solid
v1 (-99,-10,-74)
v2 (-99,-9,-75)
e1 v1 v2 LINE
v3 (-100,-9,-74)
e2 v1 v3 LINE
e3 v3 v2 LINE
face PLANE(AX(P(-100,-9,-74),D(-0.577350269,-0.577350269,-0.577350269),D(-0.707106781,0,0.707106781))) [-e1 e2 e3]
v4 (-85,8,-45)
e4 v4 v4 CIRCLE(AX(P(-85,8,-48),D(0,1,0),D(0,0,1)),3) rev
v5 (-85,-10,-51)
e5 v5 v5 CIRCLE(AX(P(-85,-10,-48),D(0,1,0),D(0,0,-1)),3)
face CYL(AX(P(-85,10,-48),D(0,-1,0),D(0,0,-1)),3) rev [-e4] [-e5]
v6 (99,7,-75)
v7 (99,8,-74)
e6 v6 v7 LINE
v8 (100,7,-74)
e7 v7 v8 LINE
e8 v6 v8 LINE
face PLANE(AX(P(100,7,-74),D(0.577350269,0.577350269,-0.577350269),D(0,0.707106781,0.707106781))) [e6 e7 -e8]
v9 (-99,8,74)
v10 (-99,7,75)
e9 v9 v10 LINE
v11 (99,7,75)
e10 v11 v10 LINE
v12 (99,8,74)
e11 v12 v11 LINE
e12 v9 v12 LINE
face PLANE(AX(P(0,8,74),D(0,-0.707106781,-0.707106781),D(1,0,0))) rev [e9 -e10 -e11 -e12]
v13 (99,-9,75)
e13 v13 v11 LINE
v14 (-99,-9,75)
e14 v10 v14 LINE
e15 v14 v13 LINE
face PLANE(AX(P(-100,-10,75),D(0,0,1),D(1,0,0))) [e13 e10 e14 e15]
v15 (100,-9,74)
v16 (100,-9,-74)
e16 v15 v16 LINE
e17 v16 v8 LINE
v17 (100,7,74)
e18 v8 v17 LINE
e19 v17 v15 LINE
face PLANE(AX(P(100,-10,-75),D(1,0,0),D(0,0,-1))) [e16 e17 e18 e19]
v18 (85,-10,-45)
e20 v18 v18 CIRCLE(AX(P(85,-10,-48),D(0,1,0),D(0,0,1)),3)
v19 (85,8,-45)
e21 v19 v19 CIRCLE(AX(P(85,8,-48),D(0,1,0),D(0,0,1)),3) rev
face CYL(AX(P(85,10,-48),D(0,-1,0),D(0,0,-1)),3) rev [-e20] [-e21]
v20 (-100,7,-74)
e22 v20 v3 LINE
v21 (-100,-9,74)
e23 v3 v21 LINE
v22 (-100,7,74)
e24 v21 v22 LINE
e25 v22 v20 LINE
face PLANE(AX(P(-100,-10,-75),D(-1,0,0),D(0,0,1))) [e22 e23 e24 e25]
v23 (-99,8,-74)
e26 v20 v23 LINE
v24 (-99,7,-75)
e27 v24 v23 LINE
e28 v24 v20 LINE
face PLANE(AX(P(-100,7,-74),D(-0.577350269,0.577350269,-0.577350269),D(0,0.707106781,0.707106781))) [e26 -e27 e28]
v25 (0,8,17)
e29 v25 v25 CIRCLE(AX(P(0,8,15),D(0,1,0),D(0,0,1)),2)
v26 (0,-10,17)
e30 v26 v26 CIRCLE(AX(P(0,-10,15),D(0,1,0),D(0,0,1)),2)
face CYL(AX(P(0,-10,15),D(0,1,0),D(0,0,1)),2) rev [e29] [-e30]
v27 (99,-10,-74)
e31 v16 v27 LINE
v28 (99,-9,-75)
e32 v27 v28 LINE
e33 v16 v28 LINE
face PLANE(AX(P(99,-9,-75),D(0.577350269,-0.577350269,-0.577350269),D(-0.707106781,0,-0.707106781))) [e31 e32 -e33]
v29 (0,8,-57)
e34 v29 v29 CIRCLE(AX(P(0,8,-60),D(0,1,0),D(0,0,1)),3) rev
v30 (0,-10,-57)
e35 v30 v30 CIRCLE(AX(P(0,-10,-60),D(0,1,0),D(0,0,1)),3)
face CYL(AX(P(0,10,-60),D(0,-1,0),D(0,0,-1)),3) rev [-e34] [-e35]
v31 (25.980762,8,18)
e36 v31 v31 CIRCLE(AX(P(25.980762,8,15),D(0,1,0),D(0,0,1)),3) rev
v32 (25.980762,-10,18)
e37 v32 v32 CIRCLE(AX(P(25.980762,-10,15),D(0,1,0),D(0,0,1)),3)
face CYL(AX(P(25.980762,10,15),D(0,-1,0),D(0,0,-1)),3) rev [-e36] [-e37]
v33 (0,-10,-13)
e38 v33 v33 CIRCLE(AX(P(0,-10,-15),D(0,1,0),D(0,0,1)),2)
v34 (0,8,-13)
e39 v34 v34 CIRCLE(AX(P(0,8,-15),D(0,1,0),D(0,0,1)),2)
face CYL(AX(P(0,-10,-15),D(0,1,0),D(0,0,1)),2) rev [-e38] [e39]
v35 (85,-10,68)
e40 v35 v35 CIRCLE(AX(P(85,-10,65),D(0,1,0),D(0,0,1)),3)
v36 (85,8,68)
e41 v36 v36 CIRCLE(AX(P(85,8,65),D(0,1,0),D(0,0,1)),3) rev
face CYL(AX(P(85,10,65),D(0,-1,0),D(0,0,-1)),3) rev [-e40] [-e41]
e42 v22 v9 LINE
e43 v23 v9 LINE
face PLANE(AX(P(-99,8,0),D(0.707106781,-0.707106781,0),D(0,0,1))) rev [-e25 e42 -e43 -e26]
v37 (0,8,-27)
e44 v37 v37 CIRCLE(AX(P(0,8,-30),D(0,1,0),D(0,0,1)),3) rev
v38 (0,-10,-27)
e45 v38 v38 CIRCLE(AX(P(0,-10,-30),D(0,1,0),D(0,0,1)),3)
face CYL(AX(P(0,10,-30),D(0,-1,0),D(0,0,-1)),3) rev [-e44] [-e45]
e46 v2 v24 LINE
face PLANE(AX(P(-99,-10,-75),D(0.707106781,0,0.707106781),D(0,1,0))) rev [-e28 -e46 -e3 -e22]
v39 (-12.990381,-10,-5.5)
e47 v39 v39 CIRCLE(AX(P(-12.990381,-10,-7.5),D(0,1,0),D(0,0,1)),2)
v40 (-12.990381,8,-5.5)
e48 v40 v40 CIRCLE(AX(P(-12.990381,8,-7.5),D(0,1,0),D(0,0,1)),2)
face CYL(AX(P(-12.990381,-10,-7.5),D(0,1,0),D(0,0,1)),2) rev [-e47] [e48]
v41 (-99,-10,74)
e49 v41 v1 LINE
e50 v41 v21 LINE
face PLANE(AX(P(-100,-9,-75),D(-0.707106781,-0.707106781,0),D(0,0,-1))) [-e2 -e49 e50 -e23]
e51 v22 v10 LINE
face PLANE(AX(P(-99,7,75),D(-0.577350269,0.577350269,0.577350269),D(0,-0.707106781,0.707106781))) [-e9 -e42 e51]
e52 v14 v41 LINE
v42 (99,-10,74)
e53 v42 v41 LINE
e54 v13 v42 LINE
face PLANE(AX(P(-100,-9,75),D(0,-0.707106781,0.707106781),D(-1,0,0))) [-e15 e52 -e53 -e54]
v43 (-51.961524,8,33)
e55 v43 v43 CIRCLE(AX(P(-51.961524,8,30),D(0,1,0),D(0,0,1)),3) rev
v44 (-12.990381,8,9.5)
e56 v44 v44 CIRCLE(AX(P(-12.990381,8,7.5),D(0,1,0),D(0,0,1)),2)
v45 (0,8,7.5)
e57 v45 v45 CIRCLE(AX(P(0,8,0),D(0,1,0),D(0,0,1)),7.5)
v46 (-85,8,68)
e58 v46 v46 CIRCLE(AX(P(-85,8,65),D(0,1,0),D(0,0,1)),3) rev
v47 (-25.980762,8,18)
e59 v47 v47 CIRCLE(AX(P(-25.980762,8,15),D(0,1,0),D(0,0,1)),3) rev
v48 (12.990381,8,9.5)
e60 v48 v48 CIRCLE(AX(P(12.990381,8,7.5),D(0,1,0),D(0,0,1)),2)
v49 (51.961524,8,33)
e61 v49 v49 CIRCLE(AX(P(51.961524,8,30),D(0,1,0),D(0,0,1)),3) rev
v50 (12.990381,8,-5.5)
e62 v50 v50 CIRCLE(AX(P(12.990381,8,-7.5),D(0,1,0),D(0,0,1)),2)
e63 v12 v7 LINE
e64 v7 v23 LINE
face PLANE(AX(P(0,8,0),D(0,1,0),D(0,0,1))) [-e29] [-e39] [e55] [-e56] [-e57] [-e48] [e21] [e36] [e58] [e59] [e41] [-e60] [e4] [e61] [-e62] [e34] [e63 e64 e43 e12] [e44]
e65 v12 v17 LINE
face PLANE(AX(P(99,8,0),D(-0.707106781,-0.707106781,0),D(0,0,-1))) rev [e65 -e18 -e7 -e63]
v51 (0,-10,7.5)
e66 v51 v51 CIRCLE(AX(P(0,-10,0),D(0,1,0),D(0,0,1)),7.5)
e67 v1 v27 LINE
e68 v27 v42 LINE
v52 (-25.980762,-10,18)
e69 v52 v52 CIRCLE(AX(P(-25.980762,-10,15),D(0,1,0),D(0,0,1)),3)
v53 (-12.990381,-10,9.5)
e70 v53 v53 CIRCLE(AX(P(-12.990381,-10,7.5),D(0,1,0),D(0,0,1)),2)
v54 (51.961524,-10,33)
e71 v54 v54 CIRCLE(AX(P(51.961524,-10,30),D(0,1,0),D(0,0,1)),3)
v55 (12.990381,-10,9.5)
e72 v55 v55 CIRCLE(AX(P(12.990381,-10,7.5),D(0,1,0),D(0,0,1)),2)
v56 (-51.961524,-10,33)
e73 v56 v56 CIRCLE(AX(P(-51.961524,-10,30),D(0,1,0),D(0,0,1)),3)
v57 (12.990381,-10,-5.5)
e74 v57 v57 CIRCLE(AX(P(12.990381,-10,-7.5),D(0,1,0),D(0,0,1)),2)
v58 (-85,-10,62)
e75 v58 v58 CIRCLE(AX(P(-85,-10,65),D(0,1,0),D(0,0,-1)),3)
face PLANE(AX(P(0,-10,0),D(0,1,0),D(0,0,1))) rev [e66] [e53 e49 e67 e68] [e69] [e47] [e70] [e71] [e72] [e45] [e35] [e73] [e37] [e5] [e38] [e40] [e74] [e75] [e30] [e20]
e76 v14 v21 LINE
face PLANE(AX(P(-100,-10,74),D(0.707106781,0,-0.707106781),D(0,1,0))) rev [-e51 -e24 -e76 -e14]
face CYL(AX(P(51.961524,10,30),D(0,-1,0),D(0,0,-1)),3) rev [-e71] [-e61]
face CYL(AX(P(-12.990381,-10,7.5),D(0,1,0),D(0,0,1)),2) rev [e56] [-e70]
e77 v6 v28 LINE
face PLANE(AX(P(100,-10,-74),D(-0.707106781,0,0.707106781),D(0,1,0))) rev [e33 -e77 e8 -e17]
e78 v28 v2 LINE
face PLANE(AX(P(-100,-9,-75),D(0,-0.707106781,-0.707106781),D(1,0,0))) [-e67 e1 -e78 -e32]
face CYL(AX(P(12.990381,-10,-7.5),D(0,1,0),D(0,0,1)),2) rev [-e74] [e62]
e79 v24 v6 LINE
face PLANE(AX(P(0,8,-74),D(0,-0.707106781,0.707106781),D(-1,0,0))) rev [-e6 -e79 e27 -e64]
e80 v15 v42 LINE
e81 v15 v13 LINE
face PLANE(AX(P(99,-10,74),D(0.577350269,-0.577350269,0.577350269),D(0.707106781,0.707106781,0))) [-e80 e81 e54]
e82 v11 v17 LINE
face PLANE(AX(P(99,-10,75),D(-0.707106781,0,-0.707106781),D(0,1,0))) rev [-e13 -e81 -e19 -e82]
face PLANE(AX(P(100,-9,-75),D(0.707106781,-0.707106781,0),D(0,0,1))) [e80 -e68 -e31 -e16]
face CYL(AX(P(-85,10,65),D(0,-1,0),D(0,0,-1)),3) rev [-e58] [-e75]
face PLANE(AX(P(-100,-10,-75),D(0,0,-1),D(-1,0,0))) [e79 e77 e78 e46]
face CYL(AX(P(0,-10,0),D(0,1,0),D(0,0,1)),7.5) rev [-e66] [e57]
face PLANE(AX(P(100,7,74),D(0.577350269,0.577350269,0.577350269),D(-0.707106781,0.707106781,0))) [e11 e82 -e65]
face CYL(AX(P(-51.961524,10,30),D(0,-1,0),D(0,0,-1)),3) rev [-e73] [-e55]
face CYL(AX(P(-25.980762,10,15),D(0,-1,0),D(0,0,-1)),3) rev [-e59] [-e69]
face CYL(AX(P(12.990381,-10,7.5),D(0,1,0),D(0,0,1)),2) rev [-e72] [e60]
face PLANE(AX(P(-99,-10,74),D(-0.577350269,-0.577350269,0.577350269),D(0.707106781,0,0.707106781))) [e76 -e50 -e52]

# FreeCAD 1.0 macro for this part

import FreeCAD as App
import Part
import Sketcher

V = App.Vector
Q = App.Units.Quantity


def edges_at(feature, points):
    """Names of the edges that pass closest to the given points."""
    edges = feature.Shape.Edges
    near = lambda p: min(range(len(edges)), key=lambda i: edges[i].distToShape(Part.Vertex(*p))[0])
    return sorted({f"Edge{near(p) + 1}" for p in points})


def add_polygon(sketch, points):
    """Adds a closed chain of lines whose ends are joined by coincident constraints."""
    first, n = sketch.GeometryCount, len(points)
    for a, b in zip(points, points[1:] + points[:1]):
        sketch.addGeometry(Part.LineSegment(App.Vector(*a, 0), App.Vector(*b, 0)), False)
    for i in range(n):
        sketch.addConstraint(Sketcher.Constraint("Coincident", first + i, 2, first + (i + 1) % n, 1))

doc = App.newDocument("Part")
body = doc.addObject("PartDesign::Body", "Body")

# Sketch on XZ plane
sketch1 = body.newObject("Sketcher::SketchObject", "Sketch")
sketch1.AttachmentSupport = (doc.getObject("XZ_Plane"), [""])
sketch1.MapMode = "FlatFace"
add_polygon(sketch1, [(-100, -75), (-100, 75), (100, 75), (100, -75)])  # lines 0-3
sketch1.addGeometry(Part.Circle(V(-13, 7.5, 0), V(0, 0, 1), 2), False)  # 4
sketch1.addGeometry(Part.Circle(V(0, 15, 0), V(0, 0, 1), 2), False)  # 5
sketch1.addGeometry(Part.Circle(V(13, 7.5, 0), V(0, 0, 1), 2), False)  # 6
sketch1.addGeometry(Part.Circle(V(-13, -7.5, 0), V(0, 0, 1), 2), False)  # 7
sketch1.addGeometry(Part.Circle(V(0, 0, 0), V(0, 0, 1), 7.5), False)  # 8
sketch1.addGeometry(Part.Circle(V(13, -7.5, 0), V(0, 0, 1), 2), False)  # 9
sketch1.addGeometry(Part.Circle(V(0, -15, 0), V(0, 0, 1), 2), False)  # 10
sketch1.addConstraint([
    Sketcher.Constraint("Vertical", 0),
    Sketcher.Constraint("Horizontal", 1),
    Sketcher.Constraint("Vertical", 2),
    Sketcher.Constraint("Horizontal", 3),
    Sketcher.Constraint("Coincident", 8, 3, -1, 1),
    Sketcher.Constraint("Equal", 4, 5),
    Sketcher.Constraint("Equal", 5, 6),
    Sketcher.Constraint("Equal", 6, 7),
    Sketcher.Constraint("Equal", 7, 9),
    Sketcher.Constraint("Equal", 9, 10),
    Sketcher.Constraint("Symmetric", 6, 3, 7, 3, -1, 1),
    Sketcher.Constraint("Symmetric", 4, 3, 9, 3, -1, 1),
    Sketcher.Constraint("Symmetric", 5, 3, 10, 3, -1, 1),
    Sketcher.Constraint("Symmetric", 0, 2, 2, 2, -1, 1),
    Sketcher.Constraint("Symmetric", 4, 3, 6, 3, -2),
    Sketcher.Constraint("PointOnObject", 5, 3, -2),
    Sketcher.Constraint("Diameter", 4, Q("4 mm")),
    Sketcher.Constraint("Diameter", 8, Q("15 mm")),
    Sketcher.Constraint("DistanceX", 1, 1, 1, 2, Q("200 mm")),
    Sketcher.Constraint("DistanceY", 0, 1, 0, 2, Q("150 mm")),
    Sketcher.Constraint("DistanceY", -1, 1, 5, 3, Q("15 mm")),
    Sketcher.Constraint("DistanceY", 7, 3, 4, 3, Q("15 mm")),
    Sketcher.Constraint("DistanceX", 4, 3, -1, 1, Q("12.990381 mm")),
])
pad1 = body.newObject("PartDesign::Pad", "Pad")
pad1.Profile = sketch1
pad1.Type = "TwoLengths"
pad1.Length = 8
pad1.Length2 = 10
pad1.Reversed = True

# Sketch on XZ plane
sketch2 = body.newObject("Sketcher::SketchObject", "Sketch001")
sketch2.AttachmentSupport = (doc.getObject("XZ_Plane"), [""])
sketch2.MapMode = "FlatFace"
sketch2.addGeometry([
    Part.Circle(V(-26, 15, 0), V(0, 0, 1), 3),  # 0
    Part.Circle(V(0, -30, 0), V(0, 0, 1), 3),  # 1
    Part.Circle(V(26, 15, 0), V(0, 0, 1), 3),  # 2
    Part.Circle(V(85, -48, 0), V(0, 0, 1), 3),  # 3
    Part.Circle(V(85, 65, 0), V(0, 0, 1), 3),  # 4
    Part.Circle(V(-52, 30, 0), V(0, 0, 1), 3),  # 5
    Part.Circle(V(-85, 65, 0), V(0, 0, 1), 3),  # 6
    Part.Circle(V(-85, -48, 0), V(0, 0, 1), 3),  # 7
    Part.Circle(V(0, -60, 0), V(0, 0, 1), 3),  # 8
    Part.Circle(V(52, 30, 0), V(0, 0, 1), 3),  # 9
], False)
sketch2.addConstraint([
    Sketcher.Constraint("Equal", 0, 1),
    Sketcher.Constraint("Equal", 1, 2),
    Sketcher.Constraint("Equal", 2, 3),
    Sketcher.Constraint("Equal", 3, 4),
    Sketcher.Constraint("Equal", 4, 5),
    Sketcher.Constraint("Equal", 5, 6),
    Sketcher.Constraint("Equal", 6, 7),
    Sketcher.Constraint("Equal", 7, 8),
    Sketcher.Constraint("Equal", 8, 9),
    Sketcher.Constraint("Symmetric", 0, 3, 2, 3, -2),
    Sketcher.Constraint("Symmetric", 4, 3, 6, 3, -2),
    Sketcher.Constraint("Symmetric", 3, 3, 7, 3, -2),
    Sketcher.Constraint("Symmetric", 5, 3, 9, 3, -2),
    Sketcher.Constraint("PointOnObject", 1, 3, -2),
    Sketcher.Constraint("PointOnObject", 8, 3, -2),
    Sketcher.Constraint("Vertical", 3, 3, 4, 3),
    Sketcher.Constraint("Diameter", 0, Q("6 mm")),
    Sketcher.Constraint("DistanceY", -1, 1, 0, 3, Q("15 mm")),
    Sketcher.Constraint("DistanceY", 1, 3, -1, 1, Q("30 mm")),
    Sketcher.Constraint("DistanceX", -1, 1, 3, 3, Q("85 mm")),
    Sketcher.Constraint("DistanceY", 3, 3, -1, 1, Q("48 mm")),
    Sketcher.Constraint("DistanceY", -1, 1, 4, 3, Q("65 mm")),
    Sketcher.Constraint("DistanceY", -1, 1, 5, 3, Q("30 mm")),
    Sketcher.Constraint("DistanceY", 8, 3, -1, 1, Q("60 mm")),
    Sketcher.Constraint("DistanceX", 0, 3, -1, 1, Q("25.980762 mm")),
    Sketcher.Constraint("DistanceX", 5, 3, -1, 1, Q("51.961524 mm")),
])
pocket1 = body.newObject("PartDesign::Pocket", "Pocket")
pocket1.Profile = sketch2
pocket1.Type = "ThroughAll"
pocket1.Midplane = True
doc.recompute()

chamfer = body.newObject("PartDesign::Chamfer", "Chamfer")
chamfer.Base = (pocket1, edges_at(pocket1, [
    (-100, -10, 0),
    (0, -10, 75),
    (100, 8, 0),
    (0, 8, -75),
    (-100, 8, 0),
    (0, 8, 75),
    (100, -10, 0),
    (0, -10, -75),
    (100, -1, 75),
    (-100, -1, 75),
    (-100, -1, -75),
    (100, -1, -75),
]))
chamfer.Size = 1

doc.recompute()
